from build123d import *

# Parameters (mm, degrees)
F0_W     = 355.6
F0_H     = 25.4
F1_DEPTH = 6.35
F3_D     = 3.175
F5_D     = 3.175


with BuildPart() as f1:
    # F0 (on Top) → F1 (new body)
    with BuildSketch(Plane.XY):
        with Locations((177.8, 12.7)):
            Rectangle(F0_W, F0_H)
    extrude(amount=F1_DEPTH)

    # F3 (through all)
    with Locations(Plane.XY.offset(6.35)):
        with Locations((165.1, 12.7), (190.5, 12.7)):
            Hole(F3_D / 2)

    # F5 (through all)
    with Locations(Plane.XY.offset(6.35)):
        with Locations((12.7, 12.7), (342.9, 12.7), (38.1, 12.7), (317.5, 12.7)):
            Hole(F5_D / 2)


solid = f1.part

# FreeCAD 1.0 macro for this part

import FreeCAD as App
import Part
import Sketcher
Q = App.Units.Quantity


def add_polygon(sketch, points):
    """Adds a closed chain of lines whose ends are joined by coincident constraints."""
    first, n = sketch.GeometryCount, len(points)
    for a, b in zip(points, points[1:] + points[:1]):
        sketch.addGeometry(Part.LineSegment(App.Vector(*a, 0), App.Vector(*b, 0)), False)
    for i in range(n):
        sketch.addConstraint(Sketcher.Constraint("Coincident", first + i, 2, first + (i + 1) % n, 1))

doc = App.newDocument("Part")
params = doc.addObject("Spreadsheet::Sheet", "Params")
for row, (alias, value) in enumerate([
    ("sketch1_width", "14 in"),
    ("sketch1_height", "1 in"),
    ("pad1_length", "0.25 in"),
    ("sketch2_diameter", "0.125 in"),
    ("hole_diameter", "0.125 in"),
    ("sketch3_diameter", "0.125 in"),
    ("hole2_diameter", "0.125 in"),
], start=1):
    params.set(f"A{row}", alias)
    params.set(f"B{row}", "=" + value)
    params.setAlias(f"B{row}", alias)

body = doc.addObject("PartDesign::Body", "Body")

# Sketch on XY plane
sketch1 = doc.addObject("Sketcher::SketchObject", "Sketch")
body.addObject(sketch1)
sketch1.AttachmentSupport = (doc.XY_Plane, [""])
sketch1.MapMode = "FlatFace"
add_polygon(sketch1, [(0, 25), (0, 0), (356, 0), (356, 25)])  # lines 0-3
sketch1.addConstraint([
    Sketcher.Constraint("Vertical", 0),
    Sketcher.Constraint("Horizontal", 1),
    Sketcher.Constraint("Vertical", 2),
    Sketcher.Constraint("Horizontal", 3),
    Sketcher.Constraint("Coincident", 0, 2, -1, 1),
    Sketcher.Constraint("DistanceX", 1, 1, 1, 2, Q("14 in")),
    Sketcher.Constraint("DistanceY", 0, 2, 0, 1, Q("1 in")),
])
sketch1.setExpression("Constraints[9]", "Params.sketch1_width")
sketch1.setExpression("Constraints[10]", "Params.sketch1_height")
pad1 = doc.addObject("PartDesign::Pad", "Pad")
body.addObject(pad1)
pad1.Profile = sketch1
pad1.setExpression("Length", "Params.pad1_length")

# Sketch on XY plane
sketch2 = doc.addObject("Sketcher::SketchObject", "Sketch001")
body.addObject(sketch2)
sketch2.AttachmentSupport = (doc.XY_Plane, [""])
sketch2.MapMode = "FlatFace"
sketch2.AttachmentOffset = App.Placement(App.Vector(0, 0, 0.25 * 25.4), App.Rotation())
sketch2.addGeometry([
    Part.Circle(App.Vector(165.1, 12.7, 0), App.Vector(0, 0, 1), 1.6),
    Part.Circle(App.Vector(190.5, 12.7, 0), App.Vector(0, 0, 1), 1.6),
], False)
sketch2.addConstraint([
    Sketcher.Constraint("Equal", 0, 1),
    Sketcher.Constraint("Horizontal", 0, 3, 1, 3),
    Sketcher.Constraint("Diameter", 0, Q("0.125 in")),
    Sketcher.Constraint("DistanceX", 0, 3, 1, 3, Q("1 in")),
    Sketcher.Constraint("DistanceX", -1, 1, 0, 3, Q("6.5 in")),
    Sketcher.Constraint("DistanceY", -1, 1, 0, 3, Q("0.5 in")),
])
sketch2.setExpression("Constraints[2]", "Params.sketch2_diameter")
doc.recompute()
hole = doc.addObject("PartDesign::Hole", "Hole")
body.addObject(hole)
hole.Profile = sketch2
hole.ThreadType = "None"
hole.setExpression("Diameter", "Params.hole_diameter")
hole.DepthType = "ThroughAll"

# Sketch on XY plane
sketch3 = doc.addObject("Sketcher::SketchObject", "Sketch002")
body.addObject(sketch3)
sketch3.AttachmentSupport = (doc.XY_Plane, [""])
sketch3.MapMode = "FlatFace"
sketch3.AttachmentOffset = App.Placement(App.Vector(0, 0, 0.25 * 25.4), App.Rotation())
sketch3.addGeometry([
    Part.Circle(App.Vector(12.7, 12.7, 0), App.Vector(0, 0, 1), 1.6),
    Part.Circle(App.Vector(342.9, 12.7, 0), App.Vector(0, 0, 1), 1.6),
    Part.Circle(App.Vector(38.1, 12.7, 0), App.Vector(0, 0, 1), 1.6),
    Part.Circle(App.Vector(317.5, 12.7, 0), App.Vector(0, 0, 1), 1.6),
], False)
sketch3.addConstraint([
    Sketcher.Constraint("Equal", 0, 1),
    Sketcher.Constraint("Equal", 1, 2),
    Sketcher.Constraint("Equal", 2, 3),
    Sketcher.Constraint("Horizontal", 0, 3, 1, 3),
    Sketcher.Constraint("Horizontal", 1, 3, 2, 3),
    Sketcher.Constraint("Horizontal", 2, 3, 3, 3),
    Sketcher.Constraint("Diameter", 0, Q("0.125 in")),
    Sketcher.Constraint("DistanceX", 0, 3, 1, 3, Q("13 in")),
    Sketcher.Constraint("DistanceX", 0, 3, 2, 3, Q("1 in")),
    Sketcher.Constraint("DistanceX", 3, 3, 1, 3, Q("1 in")),
    Sketcher.Constraint("DistanceX", -1, 1, 0, 3, Q("0.5 in")),
    Sketcher.Constraint("DistanceY", -1, 1, 0, 3, Q("0.5 in")),
])
sketch3.setExpression("Constraints[6]", "Params.sketch3_diameter")
doc.recompute()
hole2 = doc.addObject("PartDesign::Hole", "Hole001")
body.addObject(hole2)
hole2.Profile = sketch3
hole2.ThreadType = "None"
hole2.setExpression("Diameter", "Params.hole2_diameter")
hole2.DepthType = "ThroughAll"

doc.recompute()
